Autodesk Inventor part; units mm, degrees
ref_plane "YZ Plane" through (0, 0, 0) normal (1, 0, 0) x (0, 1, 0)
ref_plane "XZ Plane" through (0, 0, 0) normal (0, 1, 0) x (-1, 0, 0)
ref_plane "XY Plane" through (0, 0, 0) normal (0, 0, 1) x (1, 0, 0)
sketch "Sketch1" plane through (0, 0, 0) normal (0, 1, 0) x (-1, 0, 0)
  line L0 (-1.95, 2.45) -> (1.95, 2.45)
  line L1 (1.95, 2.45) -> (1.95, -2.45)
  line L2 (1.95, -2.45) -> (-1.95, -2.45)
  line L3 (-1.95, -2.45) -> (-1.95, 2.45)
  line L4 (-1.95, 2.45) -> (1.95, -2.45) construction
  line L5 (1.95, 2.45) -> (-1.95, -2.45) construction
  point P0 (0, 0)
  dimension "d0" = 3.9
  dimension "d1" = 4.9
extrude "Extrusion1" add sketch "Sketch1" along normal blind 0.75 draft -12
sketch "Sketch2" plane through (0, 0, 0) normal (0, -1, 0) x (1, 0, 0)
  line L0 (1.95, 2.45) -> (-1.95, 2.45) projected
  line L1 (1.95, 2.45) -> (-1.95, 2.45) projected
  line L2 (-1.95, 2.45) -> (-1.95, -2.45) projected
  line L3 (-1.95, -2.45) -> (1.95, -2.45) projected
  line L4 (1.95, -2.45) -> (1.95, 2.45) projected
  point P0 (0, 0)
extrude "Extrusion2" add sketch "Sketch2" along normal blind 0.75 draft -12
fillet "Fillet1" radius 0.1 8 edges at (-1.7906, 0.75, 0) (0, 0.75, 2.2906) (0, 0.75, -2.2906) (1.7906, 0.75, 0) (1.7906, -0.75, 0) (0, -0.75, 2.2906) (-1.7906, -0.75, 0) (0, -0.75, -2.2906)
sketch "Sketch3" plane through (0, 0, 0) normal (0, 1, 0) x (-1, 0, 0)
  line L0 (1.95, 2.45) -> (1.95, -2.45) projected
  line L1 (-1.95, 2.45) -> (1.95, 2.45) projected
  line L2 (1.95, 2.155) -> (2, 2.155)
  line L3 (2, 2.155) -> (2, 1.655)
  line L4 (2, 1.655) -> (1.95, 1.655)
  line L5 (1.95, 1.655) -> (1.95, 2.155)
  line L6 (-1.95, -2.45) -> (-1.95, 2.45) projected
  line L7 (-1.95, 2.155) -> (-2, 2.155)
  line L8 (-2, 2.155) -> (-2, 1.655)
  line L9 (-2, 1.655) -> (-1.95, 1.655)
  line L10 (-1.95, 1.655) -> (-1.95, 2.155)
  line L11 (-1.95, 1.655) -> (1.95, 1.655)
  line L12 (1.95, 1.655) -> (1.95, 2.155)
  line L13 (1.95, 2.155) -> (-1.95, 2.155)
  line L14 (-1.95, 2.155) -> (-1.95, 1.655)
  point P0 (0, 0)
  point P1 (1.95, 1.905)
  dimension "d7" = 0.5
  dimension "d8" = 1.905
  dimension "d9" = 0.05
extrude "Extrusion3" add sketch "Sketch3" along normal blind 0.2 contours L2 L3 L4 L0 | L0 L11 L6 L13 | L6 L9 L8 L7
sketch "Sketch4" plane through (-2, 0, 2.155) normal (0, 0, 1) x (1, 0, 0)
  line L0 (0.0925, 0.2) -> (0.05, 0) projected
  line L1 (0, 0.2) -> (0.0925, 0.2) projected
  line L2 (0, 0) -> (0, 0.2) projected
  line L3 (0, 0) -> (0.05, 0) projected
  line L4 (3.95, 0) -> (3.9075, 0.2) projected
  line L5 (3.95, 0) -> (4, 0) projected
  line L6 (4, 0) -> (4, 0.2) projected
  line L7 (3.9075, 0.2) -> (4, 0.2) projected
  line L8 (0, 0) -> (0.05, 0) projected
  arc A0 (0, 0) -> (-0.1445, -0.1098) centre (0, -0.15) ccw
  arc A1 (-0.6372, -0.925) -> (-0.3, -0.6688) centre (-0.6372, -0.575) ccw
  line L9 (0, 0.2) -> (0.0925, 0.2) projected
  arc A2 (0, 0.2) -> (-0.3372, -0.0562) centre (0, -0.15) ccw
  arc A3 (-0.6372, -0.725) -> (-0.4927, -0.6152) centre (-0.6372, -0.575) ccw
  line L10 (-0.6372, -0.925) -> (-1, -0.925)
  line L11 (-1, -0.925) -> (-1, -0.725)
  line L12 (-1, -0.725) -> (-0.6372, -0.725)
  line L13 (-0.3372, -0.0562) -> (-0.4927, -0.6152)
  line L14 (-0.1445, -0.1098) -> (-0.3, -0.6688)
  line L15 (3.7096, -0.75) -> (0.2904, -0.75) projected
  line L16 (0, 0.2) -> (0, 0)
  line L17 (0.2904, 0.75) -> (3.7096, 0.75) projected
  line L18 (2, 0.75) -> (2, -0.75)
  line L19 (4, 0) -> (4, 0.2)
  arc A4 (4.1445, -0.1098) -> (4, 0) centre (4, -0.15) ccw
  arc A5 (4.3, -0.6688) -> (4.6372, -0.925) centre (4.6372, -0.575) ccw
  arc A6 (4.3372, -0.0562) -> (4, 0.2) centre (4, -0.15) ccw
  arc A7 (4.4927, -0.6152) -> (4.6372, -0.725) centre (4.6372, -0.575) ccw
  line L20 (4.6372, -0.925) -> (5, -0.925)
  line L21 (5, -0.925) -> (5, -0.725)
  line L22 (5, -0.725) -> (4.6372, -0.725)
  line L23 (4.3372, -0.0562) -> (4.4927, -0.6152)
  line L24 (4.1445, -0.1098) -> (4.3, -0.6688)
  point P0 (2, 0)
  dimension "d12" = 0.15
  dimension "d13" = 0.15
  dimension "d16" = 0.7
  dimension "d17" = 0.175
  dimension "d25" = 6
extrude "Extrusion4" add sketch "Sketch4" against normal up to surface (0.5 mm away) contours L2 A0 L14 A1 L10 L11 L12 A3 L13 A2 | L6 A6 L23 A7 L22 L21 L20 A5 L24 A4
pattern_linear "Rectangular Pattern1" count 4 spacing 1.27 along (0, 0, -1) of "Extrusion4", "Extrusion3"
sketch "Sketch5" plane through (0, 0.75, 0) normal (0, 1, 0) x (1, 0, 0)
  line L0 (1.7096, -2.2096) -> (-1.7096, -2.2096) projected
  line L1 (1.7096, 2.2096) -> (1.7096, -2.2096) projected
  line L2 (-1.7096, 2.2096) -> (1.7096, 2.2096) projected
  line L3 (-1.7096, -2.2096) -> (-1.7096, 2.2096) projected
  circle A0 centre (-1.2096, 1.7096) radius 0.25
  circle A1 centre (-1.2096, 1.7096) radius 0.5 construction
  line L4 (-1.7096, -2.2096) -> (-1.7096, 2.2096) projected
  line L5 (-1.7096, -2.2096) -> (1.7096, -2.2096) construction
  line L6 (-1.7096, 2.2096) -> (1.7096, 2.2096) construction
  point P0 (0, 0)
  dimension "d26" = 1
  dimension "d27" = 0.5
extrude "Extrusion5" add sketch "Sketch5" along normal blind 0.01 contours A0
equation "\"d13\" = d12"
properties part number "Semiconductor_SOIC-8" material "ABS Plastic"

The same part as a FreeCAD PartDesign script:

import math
import FreeCAD as App
import Part
import Sketcher
from FreeCAD import Vector
Q = App.Units.Quantity


def edges_at(feature, points):
    """Names of the edges that pass closest to the given points."""
    edges = feature.Shape.Edges
    near = lambda p: min(range(len(edges)), key=lambda i: edges[i].distToShape(Part.Vertex(*p))[0])
    return sorted({f"Edge{near(p) + 1}" for p in points})

doc = App.newDocument("Part")
body = doc.addObject("PartDesign::Body", "Body")

sketch1 = body.newObject("Sketcher::SketchObject", "Sketch")
sketch1.AttachmentSupport = (doc.getObject("XZ_Plane"), [""])
sketch1.MapMode = "FlatFace"
sketch1.addGeometry(Part.LineSegment(Vector(-1.9, 2.5, 0), Vector(1.9, 2.5, 0)), False)
sketch1.addGeometry(Part.LineSegment(Vector(1.9, 2.5, 0), Vector(1.9, -2.5, 0)), False)
sketch1.addGeometry(Part.LineSegment(Vector(1.9, -2.5, 0), Vector(-1.9, -2.5, 0)), False)
sketch1.addGeometry(Part.LineSegment(Vector(-1.9, -2.5, 0), Vector(-1.9, 2.5, 0)), False)
sketch1.addConstraint(Sketcher.Constraint("Coincident", 0, 2, 1, 1))
sketch1.addConstraint(Sketcher.Constraint("Coincident", 1, 2, 2, 1))
sketch1.addConstraint(Sketcher.Constraint("Coincident", 2, 2, 3, 1))
sketch1.addConstraint(Sketcher.Constraint("Coincident", 3, 2, 0, 1))
sketch1.addConstraint(Sketcher.Constraint("Horizontal", 0))
sketch1.addConstraint(Sketcher.Constraint("Vertical", 1))
sketch1.addConstraint(Sketcher.Constraint("Horizontal", 2))
sketch1.addConstraint(Sketcher.Constraint("Vertical", 3))
sketch1.addConstraint(Sketcher.Constraint("Symmetric", 0, 2, 2, 2, -1, 1))
sketch1.addConstraint(Sketcher.Constraint("DistanceX", 0, 1, 0, 2, Q("3.9 mm")))
sketch1.addConstraint(Sketcher.Constraint("DistanceY", 1, 2, 1, 1, Q("4.9 mm")))
pad1 = body.newObject("PartDesign::Pad", "Pad")
pad1.Profile = sketch1
pad1.Length = 0.75
pad1.Reversed = True
pad1.TaperAngle = -12

sketch2 = body.newObject("Sketcher::SketchObject", "Sketch001")
sketch2.AttachmentSupport = (doc.getObject("XZ_Plane"), [""])
sketch2.MapMode = "FlatFace"
sketch2.addGeometry(Part.LineSegment(Vector(1.9, -2.5, 0), Vector(1.9, 2.5, 0)), False)
sketch2.addGeometry(Part.LineSegment(Vector(1.9, 2.5, 0), Vector(-1.9, 2.5, 0)), False)
sketch2.addGeometry(Part.LineSegment(Vector(-1.9, 2.5, 0), Vector(-1.9, -2.5, 0)), False)
sketch2.addGeometry(Part.LineSegment(Vector(-1.9, -2.5, 0), Vector(1.9, -2.5, 0)), False)
sketch2.addConstraint(Sketcher.Constraint("Coincident", 0, 2, 1, 1))
sketch2.addConstraint(Sketcher.Constraint("Coincident", 1, 2, 2, 1))
sketch2.addConstraint(Sketcher.Constraint("Coincident", 2, 2, 3, 1))
sketch2.addConstraint(Sketcher.Constraint("Coincident", 3, 2, 0, 1))
sketch2.addConstraint(Sketcher.Constraint("Vertical", 0))
sketch2.addConstraint(Sketcher.Constraint("Horizontal", 1))
sketch2.addConstraint(Sketcher.Constraint("Vertical", 2))
sketch2.addConstraint(Sketcher.Constraint("Horizontal", 3))
sketch2.addConstraint(Sketcher.Constraint("Symmetric", 0, 2, 2, 2, -1, 1))
sketch2.addConstraint(Sketcher.Constraint("DistanceX", 1, 2, 1, 1, Q("3.9 mm")))
sketch2.addConstraint(Sketcher.Constraint("DistanceY", 0, 1, 0, 2, Q("4.9 mm")))
pad2 = body.newObject("PartDesign::Pad", "Pad001")
pad2.Profile = sketch2
pad2.Length = 0.75
pad2.TaperAngle = -12
doc.recompute()

fillet = body.newObject("PartDesign::Fillet", "Fillet")
fillet.Base = (pad2, edges_at(pad2, [
    (-1.791, 0.75, 0),
    (0, 0.75, 2.291),
    (0, 0.75, -2.291),
    (1.791, 0.75, 0),
    (1.791, -0.75, 0),
    (0, -0.75, 2.291),
    (-1.791, -0.75, 0),
    (0, -0.75, -2.291),
]))
fillet.Radius = 0.1

sketch3 = body.newObject("Sketcher::SketchObject", "Sketch002")
sketch3.AttachmentSupport = (doc.getObject("XZ_Plane"), [""])
sketch3.MapMode = "FlatFace"
sketch3.addGeometry(Part.LineSegment(Vector(-2, 2.15, 0), Vector(2, 2.15, 0)), False)
sketch3.addGeometry(Part.LineSegment(Vector(2, 2.15, 0), Vector(2, 1.66, 0)), False)
sketch3.addGeometry(Part.LineSegment(Vector(2, 1.66, 0), Vector(-2, 1.66, 0)), False)
sketch3.addGeometry(Part.LineSegment(Vector(-2, 1.66, 0), Vector(-2, 2.15, 0)), False)
sketch3.addConstraint(Sketcher.Constraint("Coincident", 0, 2, 1, 1))
sketch3.addConstraint(Sketcher.Constraint("Coincident", 1, 2, 2, 1))
sketch3.addConstraint(Sketcher.Constraint("Coincident", 2, 2, 3, 1))
sketch3.addConstraint(Sketcher.Constraint("Coincident", 3, 2, 0, 1))
sketch3.addConstraint(Sketcher.Constraint("Horizontal", 0))
sketch3.addConstraint(Sketcher.Constraint("Vertical", 1))
sketch3.addConstraint(Sketcher.Constraint("Horizontal", 2))
sketch3.addConstraint(Sketcher.Constraint("Vertical", 3))
sketch3.addConstraint(Sketcher.Constraint("DistanceY", 1, 2, 1, 1, Q("0.5 mm")))
sketch3.addConstraint(Sketcher.Constraint("DistanceX", 0, 1, 0, 2, Q("4 mm")))
sketch3.addConstraint(Sketcher.Constraint("DistanceX", -1, 1, 0, 2, Q("2 mm")))
sketch3.addConstraint(Sketcher.Constraint("DistanceY", -1, 1, 0, 2, Q("2.155 mm")))
pad3 = body.newObject("PartDesign::Pad", "Pad002")
pad3.Profile = sketch3
pad3.Length = 0.2
pad3.Reversed = True

sketch4 = body.newObject("Sketcher::SketchObject", "Sketch003")
sketch4.AttachmentSupport = (doc.getObject("XY_Plane"), [""])
sketch4.MapMode = "FlatFace"
sketch4.AttachmentOffset = App.Placement(Vector(0, 0, 2.155), App.Rotation())
sketch4.addGeometry(Part.LineSegment(Vector(-2, 0, 0), Vector(-2, 0.2, 0)), False)
sketch4.addGeometry(Part.ArcOfCircle(Part.Circle(Vector(-2, -0.15, 0), Vector(0, 0, 1), 0.35), math.radians(90), math.radians(164)), False)
sketch4.addGeometry(Part.LineSegment(Vector(-2.34, -0.06, 0), Vector(-2.49, -0.62, 0)), False)
sketch4.addGeometry(Part.ArcOfCircle(Part.Circle(Vector(-2.64, -0.57, 0), Vector(0, 0, 1), 0.15), math.radians(-90), math.radians(-16)), False)
sketch4.addGeometry(Part.LineSegment(Vector(-2.64, -0.72, 0), Vector(-3, -0.72, 0)), False)
sketch4.addGeometry(Part.LineSegment(Vector(-3, -0.72, 0), Vector(-3, -0.93, 0)), False)
sketch4.addGeometry(Part.LineSegment(Vector(-3, -0.93, 0), Vector(-2.64, -0.93, 0)), False)
sketch4.addGeometry(Part.ArcOfCircle(Part.Circle(Vector(-2.64, -0.57, 0), Vector(0, 0, 1), 0.35), math.radians(-90), math.radians(-16)), False)
sketch4.addGeometry(Part.LineSegment(Vector(-2.3, -0.67, 0), Vector(-2.14, -0.11, 0)), False)
sketch4.addGeometry(Part.ArcOfCircle(Part.Circle(Vector(-2, -0.15, 0), Vector(0, 0, 1), 0.15), math.radians(90), math.radians(164)), False)
sketch4.addGeometry(Part.LineSegment(Vector(2, 0.2, 0), Vector(2, 0, 0)), False)
sketch4.addGeometry(Part.ArcOfCircle(Part.Circle(Vector(2, -0.15, 0), Vector(0, 0, 1), 0.15), math.radians(16), math.radians(90)), False)
sketch4.addGeometry(Part.LineSegment(Vector(2.14, -0.11, 0), Vector(2.3, -0.67, 0)), False)
sketch4.addGeometry(Part.ArcOfCircle(Part.Circle(Vector(2.64, -0.57, 0), Vector(0, 0, 1), 0.35), math.radians(-164), math.radians(-90)), False)
sketch4.addGeometry(Part.LineSegment(Vector(2.64, -0.93, 0), Vector(3, -0.93, 0)), False)
sketch4.addGeometry(Part.LineSegment(Vector(3, -0.93, 0), Vector(3, -0.72, 0)), False)
sketch4.addGeometry(Part.LineSegment(Vector(3, -0.72, 0), Vector(2.64, -0.72, 0)), False)
sketch4.addGeometry(Part.ArcOfCircle(Part.Circle(Vector(2.64, -0.57, 0), Vector(0, 0, 1), 0.15), math.radians(-164), math.radians(-90)), False)
sketch4.addGeometry(Part.LineSegment(Vector(2.49, -0.62, 0), Vector(2.34, -0.06, 0)), False)
sketch4.addGeometry(Part.ArcOfCircle(Part.Circle(Vector(2, -0.15, 0), Vector(0, 0, 1), 0.35), math.radians(16), math.radians(90)), False)
sketch4.addConstraint(Sketcher.Constraint("Coincident", 0, 2, 1, 1))
sketch4.addConstraint(Sketcher.Constraint("Tangent", 1, 2, 2, 1))
sketch4.addConstraint(Sketcher.Constraint("Tangent", 2, 2, 3, 2))
sketch4.addConstraint(Sketcher.Constraint("Tangent", 3, 1, 4, 1))
sketch4.addConstraint(Sketcher.Constraint("Coincident", 4, 2, 5, 1))
sketch4.addConstraint(Sketcher.Constraint("Coincident", 5, 2, 6, 1))
sketch4.addConstraint(Sketcher.Constraint("Tangent", 6, 2, 7, 1))
sketch4.addConstraint(Sketcher.Constraint("Tangent", 7, 2, 8, 1))
sketch4.addConstraint(Sketcher.Constraint("Tangent", 8, 2, 9, 2))
sketch4.addConstraint(Sketcher.Constraint("Coincident", 9, 1, 0, 1))
sketch4.addConstraint(Sketcher.Constraint("Coincident", 10, 2, 11, 2))
sketch4.addConstraint(Sketcher.Constraint("Tangent", 11, 1, 12, 1))
sketch4.addConstraint(Sketcher.Constraint("Tangent", 12, 2, 13, 1))
sketch4.addConstraint(Sketcher.Constraint("Tangent", 13, 2, 14, 1))
sketch4.addConstraint(Sketcher.Constraint("Coincident", 14, 2, 15, 1))
sketch4.addConstraint(Sketcher.Constraint("Coincident", 15, 2, 16, 1))
sketch4.addConstraint(Sketcher.Constraint("Tangent", 16, 2, 17, 2))
sketch4.addConstraint(Sketcher.Constraint("Tangent", 17, 1, 18, 1))
sketch4.addConstraint(Sketcher.Constraint("Tangent", 18, 2, 19, 1))
sketch4.addConstraint(Sketcher.Constraint("Coincident", 19, 2, 10, 1))
sketch4.addConstraint(Sketcher.Constraint("Vertical", 0))
sketch4.addConstraint(Sketcher.Constraint("Horizontal", 4))
sketch4.addConstraint(Sketcher.Constraint("Vertical", 5))
sketch4.addConstraint(Sketcher.Constraint("Horizontal", 6))
sketch4.addConstraint(Sketcher.Constraint("Vertical", 10))
sketch4.addConstraint(Sketcher.Constraint("Horizontal", 14))
sketch4.addConstraint(Sketcher.Constraint("Vertical", 15))
sketch4.addConstraint(Sketcher.Constraint("Horizontal", 16))
sketch4.addConstraint(Sketcher.Constraint("Coincident", 7, 3, 3, 3))
sketch4.addConstraint(Sketcher.Constraint("Coincident", 9, 3, 1, 3))
sketch4.addConstraint(Sketcher.Constraint("Coincident", 17, 3, 13, 3))
sketch4.addConstraint(Sketcher.Constraint("Coincident", 19, 3, 11, 3))
sketch4.addConstraint(Sketcher.Constraint("Equal", 1, 7))
sketch4.addConstraint(Sketcher.Constraint("Equal", 3, 9))
sketch4.addConstraint(Sketcher.Constraint("Equal", 9, 11))
sketch4.addConstraint(Sketcher.Constraint("Equal", 7, 13))
sketch4.addConstraint(Sketcher.Constraint("Equal", 11, 17))
sketch4.addConstraint(Sketcher.Constraint("Equal", 13, 19))
sketch4.addConstraint(Sketcher.Constraint("Symmetric", 9, 1, 10, 2, -1, 1))
sketch4.addConstraint(Sketcher.Constraint("Symmetric", 1, 3, 11, 3, -2))
sketch4.addConstraint(Sketcher.Constraint("Symmetric", 3, 3, 13, 3, -2))
sketch4.addConstraint(Sketcher.Constraint("Vertical", 9, 3, 0, 2))
sketch4.addConstraint(Sketcher.Constraint("Equal", 6, 14))
sketch4.addConstraint(Sketcher.Constraint("Radius", 1, Q("0.35 mm")))
sketch4.addConstraint(Sketcher.Constraint("Radius", 3, Q("0.15 mm")))
sketch4.addConstraint(Sketcher.Constraint("DistanceX", 12, 2, 14, 2, Q("0.7 mm")))
sketch4.addConstraint(Sketcher.Constraint("DistanceX", 1, 3, -1, 1, Q("2 mm")))
sketch4.addConstraint(Sketcher.Constraint("DistanceX", 4, 2, -1, 1, Q("3 mm")))
sketch4.addConstraint(Sketcher.Constraint("DistanceX", 4, 2, 4, 1, Q("0.3628 mm")))
pad4 = body.newObject("PartDesign::Pad", "Pad003")
pad4.Profile = sketch4
pad4.Length = 0.5
pad4.Reversed = True
doc.recompute()

linearpattern = body.newObject("PartDesign::LinearPattern", "LinearPattern")
linearpattern.Originals = [pad4, pad3]
linearpattern.Direction = (doc.getObject("Z_Axis"), [""])
linearpattern.Mode = "offset"
linearpattern.Offset = 1.27
linearpattern.Occurrences = 4
linearpattern.Reversed = True
body.Tip = linearpattern

sketch5 = body.newObject("Sketcher::SketchObject", "Sketch004")
sketch5.AttachmentSupport = (doc.getObject("XZ_Plane"), [""])
sketch5.MapMode = "FlatFace"
sketch5.AttachmentOffset = App.Placement(Vector(0, 0, -0.75), App.Rotation())
sketch5.addGeometry(Part.Circle(Vector(-1.21, -1.71, 0), Vector(0, 0, 1), 0.25), False)
sketch5.addConstraint(Sketcher.Constraint("Diameter", 0, Q("0.5 mm")))
sketch5.addConstraint(Sketcher.Constraint("DistanceX", 0, 3, -1, 1, Q("1.2096 mm")))
sketch5.addConstraint(Sketcher.Constraint("DistanceY", 0, 3, -1, 1, Q("1.7096 mm")))
pad5 = body.newObject("PartDesign::Pad", "Pad004")
pad5.Profile = sketch5
pad5.Length = 0.01
pad5.Reversed = True

doc.recompute()
